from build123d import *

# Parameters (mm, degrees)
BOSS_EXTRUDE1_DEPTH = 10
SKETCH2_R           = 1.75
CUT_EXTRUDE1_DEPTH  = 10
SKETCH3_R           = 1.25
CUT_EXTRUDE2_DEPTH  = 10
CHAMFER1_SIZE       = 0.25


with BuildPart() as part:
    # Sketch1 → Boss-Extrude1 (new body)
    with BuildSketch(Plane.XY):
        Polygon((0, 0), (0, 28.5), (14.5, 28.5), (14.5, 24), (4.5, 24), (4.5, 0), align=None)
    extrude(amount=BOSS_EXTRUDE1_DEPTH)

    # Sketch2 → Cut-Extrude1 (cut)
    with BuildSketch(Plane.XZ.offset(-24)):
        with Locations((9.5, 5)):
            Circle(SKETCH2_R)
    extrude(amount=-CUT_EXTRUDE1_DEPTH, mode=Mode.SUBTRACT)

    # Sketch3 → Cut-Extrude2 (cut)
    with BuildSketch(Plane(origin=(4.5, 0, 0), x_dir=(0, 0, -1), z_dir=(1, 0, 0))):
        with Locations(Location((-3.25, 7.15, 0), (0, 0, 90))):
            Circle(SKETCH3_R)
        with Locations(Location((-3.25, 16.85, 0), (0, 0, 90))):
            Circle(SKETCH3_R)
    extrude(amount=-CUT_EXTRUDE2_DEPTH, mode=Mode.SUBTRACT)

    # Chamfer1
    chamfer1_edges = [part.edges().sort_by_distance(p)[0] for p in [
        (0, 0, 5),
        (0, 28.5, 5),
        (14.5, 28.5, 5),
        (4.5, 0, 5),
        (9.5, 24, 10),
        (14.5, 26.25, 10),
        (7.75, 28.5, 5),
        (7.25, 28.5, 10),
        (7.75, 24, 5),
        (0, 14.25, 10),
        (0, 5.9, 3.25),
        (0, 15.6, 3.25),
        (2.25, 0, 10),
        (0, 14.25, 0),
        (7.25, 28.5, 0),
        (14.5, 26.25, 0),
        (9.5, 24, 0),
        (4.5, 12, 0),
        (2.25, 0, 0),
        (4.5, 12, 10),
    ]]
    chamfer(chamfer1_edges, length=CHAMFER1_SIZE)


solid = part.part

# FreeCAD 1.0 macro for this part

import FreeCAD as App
import Part
import Sketcher
from FreeCAD import Vector
Q = App.Units.Quantity


def edges_at(feature, points):
    """Names of the edges that pass closest to the given points."""
    edges = feature.Shape.Edges
    near = lambda p: min(range(len(edges)), key=lambda i: edges[i].distToShape(Part.Vertex(*p))[0])
    return sorted({f"Edge{near(p) + 1}" for p in points})


def add_polygon(sketch, points):
    """Adds a closed chain of lines whose ends are joined by coincident constraints."""
    first, n = sketch.GeometryCount, len(points)
    for a, b in zip(points, points[1:] + points[:1]):
        sketch.addGeometry(Part.LineSegment(App.Vector(*a, 0), App.Vector(*b, 0)), False)
    for i in range(n):
        sketch.addConstraint(Sketcher.Constraint("Coincident", first + i, 2, first + (i + 1) % n, 1))

doc = App.newDocument("Part")
body = doc.addObject("PartDesign::Body", "Body")

sketch1 = doc.addObject("Sketcher::SketchObject", "Sketch")
body.addObject(sketch1)
sketch1.AttachmentSupport = (doc.XY_Plane, [""])
sketch1.MapMode = "FlatFace"
add_polygon(sketch1, [(0, 28.5), (0, 0), (4.5, 0), (4.5, 24), (14.5, 24), (14.5, 28.5)])
sketch1.addConstraint([
    Sketcher.Constraint("Vertical", 0),
    Sketcher.Constraint("Horizontal", 1),
    Sketcher.Constraint("Vertical", 2),
    Sketcher.Constraint("Horizontal", 3),
    Sketcher.Constraint("Vertical", 4),
    Sketcher.Constraint("Horizontal", 5),
    Sketcher.Constraint("Coincident", 0, 2, -1, 1),
    Sketcher.Constraint("Equal", 1, 4),
    Sketcher.Constraint("DistanceX", 3, 1, 3, 2, Q("10 mm")),
    Sketcher.Constraint("DistanceY", 2, 1, 2, 2, Q("24 mm")),
    Sketcher.Constraint("DistanceX", 1, 1, 1, 2, Q("4.5 mm")),
])
pad1 = doc.addObject("PartDesign::Pad", "Pad")
body.addObject(pad1)
pad1.Profile = sketch1
pad1.Length = 10

sketch2 = doc.addObject("Sketcher::SketchObject", "Sketch001")
body.addObject(sketch2)
sketch2.AttachmentSupport = (doc.XZ_Plane, [""])
sketch2.MapMode = "FlatFace"
sketch2.AttachmentOffset = App.Placement(Vector(0, 0, -24), App.Rotation())
sketch2.addGeometry(Part.Circle(Vector(9.5, 5, 0), Vector(0, 0, 1), 1.75), False)
sketch2.addConstraint([
    Sketcher.Constraint("Diameter", 0, Q("3.5 mm")),
    Sketcher.Constraint("DistanceY", -1, 1, 0, 3, Q("5 mm")),
    Sketcher.Constraint("DistanceX", -1, 1, 0, 3, Q("9.5 mm")),
])
pocket1 = doc.addObject("PartDesign::Pocket", "Pocket")
body.addObject(pocket1)
pocket1.Profile = sketch2
pocket1.Length = 10

sketch3 = doc.addObject("Sketcher::SketchObject", "Sketch002")
body.addObject(sketch3)
sketch3.AttachmentSupport = (doc.YZ_Plane, [""])
sketch3.MapMode = "FlatFace"
sketch3.AttachmentOffset = App.Placement(Vector(0, 0, 4.5), App.Rotation())
sketch3.addGeometry([
    Part.Circle(Vector(7.15, 3.25, 0), Vector(0, 0, 1), 1.25),
    Part.Circle(Vector(16.85, 3.25, 0), Vector(0, 0, 1), 1.25),
], False)
sketch3.addConstraint([
    Sketcher.Constraint("Equal", 0, 1),
    Sketcher.Constraint("Horizontal", 0, 3, 1, 3),
    Sketcher.Constraint("Diameter", 0, Q("2.5 mm")),
    Sketcher.Constraint("DistanceX", 0, 3, 1, 3, Q("9.7 mm")),
    Sketcher.Constraint("DistanceX", -1, 1, 0, 3, Q("7.15 mm")),
    Sketcher.Constraint("DistanceY", -1, 1, 0, 3, Q("3.25 mm")),
])
pocket2 = doc.addObject("PartDesign::Pocket", "Pocket001")
body.addObject(pocket2)
pocket2.Profile = sketch3
pocket2.Length = 10
doc.recompute()

chamfer = doc.addObject("PartDesign::Chamfer", "Chamfer")
body.addObject(chamfer)
chamfer.Base = (pocket2, edges_at(pocket2, [
    (0, 0, 5),
    (0, 28.5, 5),
    (14.5, 28.5, 5),
    (4.5, 0, 5),
    (9.5, 24, 10),
    (14.5, 26.25, 10),
    (7.75, 28.5, 5),
    (7.25, 28.5, 10),
    (7.75, 24, 5),
    (0, 14.25, 10),
    (0, 5.9, 3.25),
    (0, 15.6, 3.25),
    (2.25, 0, 10),
    (0, 14.25, 0),
    (7.25, 28.5, 0),
    (14.5, 26.25, 0),
    (9.5, 24, 0),
    (4.5, 12, 0),
    (2.25, 0, 0),
    (4.5, 12, 10),
]))
chamfer.Size = 0.25

doc.recompute()
